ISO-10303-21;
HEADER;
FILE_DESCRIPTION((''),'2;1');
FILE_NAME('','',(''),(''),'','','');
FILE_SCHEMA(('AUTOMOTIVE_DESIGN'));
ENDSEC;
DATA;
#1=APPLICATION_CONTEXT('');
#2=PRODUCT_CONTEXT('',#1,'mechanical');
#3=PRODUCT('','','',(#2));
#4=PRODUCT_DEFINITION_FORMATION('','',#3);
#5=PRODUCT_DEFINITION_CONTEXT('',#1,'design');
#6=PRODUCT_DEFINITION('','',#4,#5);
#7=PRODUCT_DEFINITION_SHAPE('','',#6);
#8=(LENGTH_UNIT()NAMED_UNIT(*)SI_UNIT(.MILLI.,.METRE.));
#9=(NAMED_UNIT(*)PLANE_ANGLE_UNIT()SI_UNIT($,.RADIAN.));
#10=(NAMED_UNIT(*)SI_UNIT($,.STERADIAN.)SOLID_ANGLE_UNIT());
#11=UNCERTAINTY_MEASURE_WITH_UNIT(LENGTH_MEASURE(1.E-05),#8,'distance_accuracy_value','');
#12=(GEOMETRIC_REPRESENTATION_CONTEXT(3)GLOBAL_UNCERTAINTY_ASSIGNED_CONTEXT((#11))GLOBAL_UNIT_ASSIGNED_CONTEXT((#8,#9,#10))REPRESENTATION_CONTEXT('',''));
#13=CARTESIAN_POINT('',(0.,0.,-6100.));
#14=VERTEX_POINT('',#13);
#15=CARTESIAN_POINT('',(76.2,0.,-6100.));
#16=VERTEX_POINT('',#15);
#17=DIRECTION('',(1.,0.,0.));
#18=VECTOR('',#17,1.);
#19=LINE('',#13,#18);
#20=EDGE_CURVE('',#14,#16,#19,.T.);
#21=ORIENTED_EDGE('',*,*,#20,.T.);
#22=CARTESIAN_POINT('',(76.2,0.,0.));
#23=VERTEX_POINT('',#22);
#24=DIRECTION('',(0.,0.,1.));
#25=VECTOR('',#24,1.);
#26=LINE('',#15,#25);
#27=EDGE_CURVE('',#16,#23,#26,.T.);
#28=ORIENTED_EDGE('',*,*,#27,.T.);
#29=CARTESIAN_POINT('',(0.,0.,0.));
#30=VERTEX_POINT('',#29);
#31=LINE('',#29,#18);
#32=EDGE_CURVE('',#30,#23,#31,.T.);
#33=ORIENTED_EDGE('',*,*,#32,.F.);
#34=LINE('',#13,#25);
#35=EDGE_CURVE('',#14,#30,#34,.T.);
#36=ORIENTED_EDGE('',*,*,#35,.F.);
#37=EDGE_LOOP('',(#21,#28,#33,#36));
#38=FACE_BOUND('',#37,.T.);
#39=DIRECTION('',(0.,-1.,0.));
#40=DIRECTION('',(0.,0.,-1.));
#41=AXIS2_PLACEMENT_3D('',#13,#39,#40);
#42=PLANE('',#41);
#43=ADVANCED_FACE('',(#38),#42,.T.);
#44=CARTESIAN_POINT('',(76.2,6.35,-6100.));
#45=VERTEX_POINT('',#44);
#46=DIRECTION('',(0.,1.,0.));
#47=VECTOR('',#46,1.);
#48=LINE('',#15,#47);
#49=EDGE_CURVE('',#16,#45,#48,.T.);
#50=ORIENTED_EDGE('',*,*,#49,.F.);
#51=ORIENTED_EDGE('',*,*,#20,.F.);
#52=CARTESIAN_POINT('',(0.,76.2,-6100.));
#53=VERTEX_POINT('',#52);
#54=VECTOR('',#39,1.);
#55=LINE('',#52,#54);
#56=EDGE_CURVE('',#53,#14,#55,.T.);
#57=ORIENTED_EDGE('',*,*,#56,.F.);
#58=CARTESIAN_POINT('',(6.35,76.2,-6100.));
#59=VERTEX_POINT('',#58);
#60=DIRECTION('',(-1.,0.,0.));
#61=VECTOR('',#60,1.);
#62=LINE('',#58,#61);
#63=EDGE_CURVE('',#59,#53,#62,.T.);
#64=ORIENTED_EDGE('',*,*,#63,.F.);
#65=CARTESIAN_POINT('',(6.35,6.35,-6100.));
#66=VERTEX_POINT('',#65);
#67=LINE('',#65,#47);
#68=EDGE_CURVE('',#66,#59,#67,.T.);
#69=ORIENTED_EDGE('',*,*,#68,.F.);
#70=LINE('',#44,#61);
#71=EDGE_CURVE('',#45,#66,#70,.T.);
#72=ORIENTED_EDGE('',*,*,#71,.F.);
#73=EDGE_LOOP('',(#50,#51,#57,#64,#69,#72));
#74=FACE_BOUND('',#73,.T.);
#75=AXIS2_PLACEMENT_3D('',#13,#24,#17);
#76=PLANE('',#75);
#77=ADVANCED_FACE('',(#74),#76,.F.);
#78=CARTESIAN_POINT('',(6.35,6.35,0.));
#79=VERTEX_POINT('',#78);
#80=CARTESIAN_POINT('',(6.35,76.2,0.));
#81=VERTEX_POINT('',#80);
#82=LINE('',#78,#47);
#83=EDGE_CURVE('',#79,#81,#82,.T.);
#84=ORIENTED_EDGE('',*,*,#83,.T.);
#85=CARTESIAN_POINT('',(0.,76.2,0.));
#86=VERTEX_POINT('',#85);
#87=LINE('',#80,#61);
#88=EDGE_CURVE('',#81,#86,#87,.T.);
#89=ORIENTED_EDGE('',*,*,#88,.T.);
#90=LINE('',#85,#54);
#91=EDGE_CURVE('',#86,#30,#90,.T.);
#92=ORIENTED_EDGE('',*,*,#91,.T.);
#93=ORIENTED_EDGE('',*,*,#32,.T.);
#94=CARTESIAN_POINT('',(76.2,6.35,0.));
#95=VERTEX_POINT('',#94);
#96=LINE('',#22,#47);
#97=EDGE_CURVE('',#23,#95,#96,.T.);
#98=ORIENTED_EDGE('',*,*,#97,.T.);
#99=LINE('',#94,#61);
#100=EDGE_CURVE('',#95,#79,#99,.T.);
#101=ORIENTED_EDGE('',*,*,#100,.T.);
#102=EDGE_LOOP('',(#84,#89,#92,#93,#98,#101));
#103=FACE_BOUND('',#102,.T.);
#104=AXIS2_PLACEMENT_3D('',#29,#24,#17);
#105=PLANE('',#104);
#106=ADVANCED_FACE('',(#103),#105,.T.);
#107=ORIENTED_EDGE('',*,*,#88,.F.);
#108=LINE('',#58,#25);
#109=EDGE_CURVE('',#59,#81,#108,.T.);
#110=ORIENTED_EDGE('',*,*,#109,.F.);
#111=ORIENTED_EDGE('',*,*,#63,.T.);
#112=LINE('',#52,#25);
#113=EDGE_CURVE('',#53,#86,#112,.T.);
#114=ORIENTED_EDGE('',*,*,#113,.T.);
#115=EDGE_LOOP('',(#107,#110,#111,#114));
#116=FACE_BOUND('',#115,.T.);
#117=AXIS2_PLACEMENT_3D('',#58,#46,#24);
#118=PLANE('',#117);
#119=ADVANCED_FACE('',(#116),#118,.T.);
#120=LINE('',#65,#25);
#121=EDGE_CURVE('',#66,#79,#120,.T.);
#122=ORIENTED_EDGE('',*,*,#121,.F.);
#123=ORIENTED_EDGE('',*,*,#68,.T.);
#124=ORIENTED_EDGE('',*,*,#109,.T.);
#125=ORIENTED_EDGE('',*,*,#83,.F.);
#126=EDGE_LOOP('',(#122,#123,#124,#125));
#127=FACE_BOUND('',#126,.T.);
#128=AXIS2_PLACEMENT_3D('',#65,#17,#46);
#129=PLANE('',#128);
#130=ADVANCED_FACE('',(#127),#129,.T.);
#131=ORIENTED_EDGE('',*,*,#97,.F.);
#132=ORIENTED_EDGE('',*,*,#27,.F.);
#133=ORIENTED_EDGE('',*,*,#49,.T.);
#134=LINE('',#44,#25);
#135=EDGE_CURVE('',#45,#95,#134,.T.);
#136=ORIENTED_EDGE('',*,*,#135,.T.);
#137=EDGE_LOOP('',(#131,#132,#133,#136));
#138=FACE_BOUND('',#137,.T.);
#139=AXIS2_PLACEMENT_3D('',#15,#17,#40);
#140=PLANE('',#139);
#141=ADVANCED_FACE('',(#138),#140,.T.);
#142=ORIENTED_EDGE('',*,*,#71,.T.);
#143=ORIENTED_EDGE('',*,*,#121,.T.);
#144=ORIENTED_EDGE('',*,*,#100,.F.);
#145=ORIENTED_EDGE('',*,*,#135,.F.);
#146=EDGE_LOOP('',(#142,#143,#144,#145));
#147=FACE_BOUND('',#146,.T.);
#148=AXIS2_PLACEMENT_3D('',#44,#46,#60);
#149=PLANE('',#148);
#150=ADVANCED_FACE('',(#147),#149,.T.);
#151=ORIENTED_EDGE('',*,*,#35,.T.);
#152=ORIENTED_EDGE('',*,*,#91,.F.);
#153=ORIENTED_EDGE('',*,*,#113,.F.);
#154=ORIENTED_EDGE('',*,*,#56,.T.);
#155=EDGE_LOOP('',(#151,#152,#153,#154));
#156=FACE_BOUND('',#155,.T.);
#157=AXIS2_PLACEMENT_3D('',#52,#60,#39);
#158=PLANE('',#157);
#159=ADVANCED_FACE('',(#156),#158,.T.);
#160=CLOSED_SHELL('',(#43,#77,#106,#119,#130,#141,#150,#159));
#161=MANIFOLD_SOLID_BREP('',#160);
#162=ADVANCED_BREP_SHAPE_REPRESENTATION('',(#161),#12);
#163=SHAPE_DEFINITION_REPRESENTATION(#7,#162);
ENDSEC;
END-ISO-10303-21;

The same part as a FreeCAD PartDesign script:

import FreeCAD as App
import Part
import Sketcher
Q = App.Units.Quantity

doc = App.newDocument("Part")
body = doc.addObject("PartDesign::Body", "Body")

sketch1 = body.newObject("Sketcher::SketchObject", "Sketch")
sketch1.AttachmentSupport = (doc.getObject("XY_Plane"), [""])
sketch1.MapMode = "FlatFace"
sketch1.addGeometry(Part.LineSegment(App.Vector(0, 76, 0), App.Vector(0, 0, 0)), False)
sketch1.addGeometry(Part.LineSegment(App.Vector(0, 0, 0), App.Vector(76, 0, 0)), False)
sketch1.addGeometry(Part.LineSegment(App.Vector(76, 0, 0), App.Vector(76, 6, 0)), False)
sketch1.addGeometry(Part.LineSegment(App.Vector(76, 6, 0), App.Vector(6, 6, 0)), False)
sketch1.addGeometry(Part.LineSegment(App.Vector(6, 6, 0), App.Vector(6, 76, 0)), False)
sketch1.addGeometry(Part.LineSegment(App.Vector(6, 76, 0), App.Vector(0, 76, 0)), False)
sketch1.addConstraint(Sketcher.Constraint("Coincident", 0, 2, 1, 1))
sketch1.addConstraint(Sketcher.Constraint("Coincident", 1, 2, 2, 1))
sketch1.addConstraint(Sketcher.Constraint("Coincident", 2, 2, 3, 1))
sketch1.addConstraint(Sketcher.Constraint("Coincident", 3, 2, 4, 1))
sketch1.addConstraint(Sketcher.Constraint("Coincident", 4, 2, 5, 1))
sketch1.addConstraint(Sketcher.Constraint("Coincident", 5, 2, 0, 1))
sketch1.addConstraint(Sketcher.Constraint("Vertical", 0))
sketch1.addConstraint(Sketcher.Constraint("Horizontal", 1))
sketch1.addConstraint(Sketcher.Constraint("Vertical", 2))
sketch1.addConstraint(Sketcher.Constraint("Horizontal", 3))
sketch1.addConstraint(Sketcher.Constraint("Vertical", 4))
sketch1.addConstraint(Sketcher.Constraint("Horizontal", 5))
sketch1.addConstraint(Sketcher.Constraint("Coincident", 0, 2, -1, 1))
sketch1.addConstraint(Sketcher.Constraint("Equal", 1, 0))
sketch1.addConstraint(Sketcher.Constraint("Equal", 5, 2))
sketch1.addConstraint(Sketcher.Constraint("DistanceX", 1, 1, 1, 2, Q("3 in")))
sketch1.addConstraint(Sketcher.Constraint("DistanceX", 3, 2, 3, 1, Q("2.75 in")))
pad1 = body.newObject("PartDesign::Pad", "Pad")
pad1.Profile = sketch1
pad1.Length = 6100
pad1.Reversed = True

doc.recompute()
